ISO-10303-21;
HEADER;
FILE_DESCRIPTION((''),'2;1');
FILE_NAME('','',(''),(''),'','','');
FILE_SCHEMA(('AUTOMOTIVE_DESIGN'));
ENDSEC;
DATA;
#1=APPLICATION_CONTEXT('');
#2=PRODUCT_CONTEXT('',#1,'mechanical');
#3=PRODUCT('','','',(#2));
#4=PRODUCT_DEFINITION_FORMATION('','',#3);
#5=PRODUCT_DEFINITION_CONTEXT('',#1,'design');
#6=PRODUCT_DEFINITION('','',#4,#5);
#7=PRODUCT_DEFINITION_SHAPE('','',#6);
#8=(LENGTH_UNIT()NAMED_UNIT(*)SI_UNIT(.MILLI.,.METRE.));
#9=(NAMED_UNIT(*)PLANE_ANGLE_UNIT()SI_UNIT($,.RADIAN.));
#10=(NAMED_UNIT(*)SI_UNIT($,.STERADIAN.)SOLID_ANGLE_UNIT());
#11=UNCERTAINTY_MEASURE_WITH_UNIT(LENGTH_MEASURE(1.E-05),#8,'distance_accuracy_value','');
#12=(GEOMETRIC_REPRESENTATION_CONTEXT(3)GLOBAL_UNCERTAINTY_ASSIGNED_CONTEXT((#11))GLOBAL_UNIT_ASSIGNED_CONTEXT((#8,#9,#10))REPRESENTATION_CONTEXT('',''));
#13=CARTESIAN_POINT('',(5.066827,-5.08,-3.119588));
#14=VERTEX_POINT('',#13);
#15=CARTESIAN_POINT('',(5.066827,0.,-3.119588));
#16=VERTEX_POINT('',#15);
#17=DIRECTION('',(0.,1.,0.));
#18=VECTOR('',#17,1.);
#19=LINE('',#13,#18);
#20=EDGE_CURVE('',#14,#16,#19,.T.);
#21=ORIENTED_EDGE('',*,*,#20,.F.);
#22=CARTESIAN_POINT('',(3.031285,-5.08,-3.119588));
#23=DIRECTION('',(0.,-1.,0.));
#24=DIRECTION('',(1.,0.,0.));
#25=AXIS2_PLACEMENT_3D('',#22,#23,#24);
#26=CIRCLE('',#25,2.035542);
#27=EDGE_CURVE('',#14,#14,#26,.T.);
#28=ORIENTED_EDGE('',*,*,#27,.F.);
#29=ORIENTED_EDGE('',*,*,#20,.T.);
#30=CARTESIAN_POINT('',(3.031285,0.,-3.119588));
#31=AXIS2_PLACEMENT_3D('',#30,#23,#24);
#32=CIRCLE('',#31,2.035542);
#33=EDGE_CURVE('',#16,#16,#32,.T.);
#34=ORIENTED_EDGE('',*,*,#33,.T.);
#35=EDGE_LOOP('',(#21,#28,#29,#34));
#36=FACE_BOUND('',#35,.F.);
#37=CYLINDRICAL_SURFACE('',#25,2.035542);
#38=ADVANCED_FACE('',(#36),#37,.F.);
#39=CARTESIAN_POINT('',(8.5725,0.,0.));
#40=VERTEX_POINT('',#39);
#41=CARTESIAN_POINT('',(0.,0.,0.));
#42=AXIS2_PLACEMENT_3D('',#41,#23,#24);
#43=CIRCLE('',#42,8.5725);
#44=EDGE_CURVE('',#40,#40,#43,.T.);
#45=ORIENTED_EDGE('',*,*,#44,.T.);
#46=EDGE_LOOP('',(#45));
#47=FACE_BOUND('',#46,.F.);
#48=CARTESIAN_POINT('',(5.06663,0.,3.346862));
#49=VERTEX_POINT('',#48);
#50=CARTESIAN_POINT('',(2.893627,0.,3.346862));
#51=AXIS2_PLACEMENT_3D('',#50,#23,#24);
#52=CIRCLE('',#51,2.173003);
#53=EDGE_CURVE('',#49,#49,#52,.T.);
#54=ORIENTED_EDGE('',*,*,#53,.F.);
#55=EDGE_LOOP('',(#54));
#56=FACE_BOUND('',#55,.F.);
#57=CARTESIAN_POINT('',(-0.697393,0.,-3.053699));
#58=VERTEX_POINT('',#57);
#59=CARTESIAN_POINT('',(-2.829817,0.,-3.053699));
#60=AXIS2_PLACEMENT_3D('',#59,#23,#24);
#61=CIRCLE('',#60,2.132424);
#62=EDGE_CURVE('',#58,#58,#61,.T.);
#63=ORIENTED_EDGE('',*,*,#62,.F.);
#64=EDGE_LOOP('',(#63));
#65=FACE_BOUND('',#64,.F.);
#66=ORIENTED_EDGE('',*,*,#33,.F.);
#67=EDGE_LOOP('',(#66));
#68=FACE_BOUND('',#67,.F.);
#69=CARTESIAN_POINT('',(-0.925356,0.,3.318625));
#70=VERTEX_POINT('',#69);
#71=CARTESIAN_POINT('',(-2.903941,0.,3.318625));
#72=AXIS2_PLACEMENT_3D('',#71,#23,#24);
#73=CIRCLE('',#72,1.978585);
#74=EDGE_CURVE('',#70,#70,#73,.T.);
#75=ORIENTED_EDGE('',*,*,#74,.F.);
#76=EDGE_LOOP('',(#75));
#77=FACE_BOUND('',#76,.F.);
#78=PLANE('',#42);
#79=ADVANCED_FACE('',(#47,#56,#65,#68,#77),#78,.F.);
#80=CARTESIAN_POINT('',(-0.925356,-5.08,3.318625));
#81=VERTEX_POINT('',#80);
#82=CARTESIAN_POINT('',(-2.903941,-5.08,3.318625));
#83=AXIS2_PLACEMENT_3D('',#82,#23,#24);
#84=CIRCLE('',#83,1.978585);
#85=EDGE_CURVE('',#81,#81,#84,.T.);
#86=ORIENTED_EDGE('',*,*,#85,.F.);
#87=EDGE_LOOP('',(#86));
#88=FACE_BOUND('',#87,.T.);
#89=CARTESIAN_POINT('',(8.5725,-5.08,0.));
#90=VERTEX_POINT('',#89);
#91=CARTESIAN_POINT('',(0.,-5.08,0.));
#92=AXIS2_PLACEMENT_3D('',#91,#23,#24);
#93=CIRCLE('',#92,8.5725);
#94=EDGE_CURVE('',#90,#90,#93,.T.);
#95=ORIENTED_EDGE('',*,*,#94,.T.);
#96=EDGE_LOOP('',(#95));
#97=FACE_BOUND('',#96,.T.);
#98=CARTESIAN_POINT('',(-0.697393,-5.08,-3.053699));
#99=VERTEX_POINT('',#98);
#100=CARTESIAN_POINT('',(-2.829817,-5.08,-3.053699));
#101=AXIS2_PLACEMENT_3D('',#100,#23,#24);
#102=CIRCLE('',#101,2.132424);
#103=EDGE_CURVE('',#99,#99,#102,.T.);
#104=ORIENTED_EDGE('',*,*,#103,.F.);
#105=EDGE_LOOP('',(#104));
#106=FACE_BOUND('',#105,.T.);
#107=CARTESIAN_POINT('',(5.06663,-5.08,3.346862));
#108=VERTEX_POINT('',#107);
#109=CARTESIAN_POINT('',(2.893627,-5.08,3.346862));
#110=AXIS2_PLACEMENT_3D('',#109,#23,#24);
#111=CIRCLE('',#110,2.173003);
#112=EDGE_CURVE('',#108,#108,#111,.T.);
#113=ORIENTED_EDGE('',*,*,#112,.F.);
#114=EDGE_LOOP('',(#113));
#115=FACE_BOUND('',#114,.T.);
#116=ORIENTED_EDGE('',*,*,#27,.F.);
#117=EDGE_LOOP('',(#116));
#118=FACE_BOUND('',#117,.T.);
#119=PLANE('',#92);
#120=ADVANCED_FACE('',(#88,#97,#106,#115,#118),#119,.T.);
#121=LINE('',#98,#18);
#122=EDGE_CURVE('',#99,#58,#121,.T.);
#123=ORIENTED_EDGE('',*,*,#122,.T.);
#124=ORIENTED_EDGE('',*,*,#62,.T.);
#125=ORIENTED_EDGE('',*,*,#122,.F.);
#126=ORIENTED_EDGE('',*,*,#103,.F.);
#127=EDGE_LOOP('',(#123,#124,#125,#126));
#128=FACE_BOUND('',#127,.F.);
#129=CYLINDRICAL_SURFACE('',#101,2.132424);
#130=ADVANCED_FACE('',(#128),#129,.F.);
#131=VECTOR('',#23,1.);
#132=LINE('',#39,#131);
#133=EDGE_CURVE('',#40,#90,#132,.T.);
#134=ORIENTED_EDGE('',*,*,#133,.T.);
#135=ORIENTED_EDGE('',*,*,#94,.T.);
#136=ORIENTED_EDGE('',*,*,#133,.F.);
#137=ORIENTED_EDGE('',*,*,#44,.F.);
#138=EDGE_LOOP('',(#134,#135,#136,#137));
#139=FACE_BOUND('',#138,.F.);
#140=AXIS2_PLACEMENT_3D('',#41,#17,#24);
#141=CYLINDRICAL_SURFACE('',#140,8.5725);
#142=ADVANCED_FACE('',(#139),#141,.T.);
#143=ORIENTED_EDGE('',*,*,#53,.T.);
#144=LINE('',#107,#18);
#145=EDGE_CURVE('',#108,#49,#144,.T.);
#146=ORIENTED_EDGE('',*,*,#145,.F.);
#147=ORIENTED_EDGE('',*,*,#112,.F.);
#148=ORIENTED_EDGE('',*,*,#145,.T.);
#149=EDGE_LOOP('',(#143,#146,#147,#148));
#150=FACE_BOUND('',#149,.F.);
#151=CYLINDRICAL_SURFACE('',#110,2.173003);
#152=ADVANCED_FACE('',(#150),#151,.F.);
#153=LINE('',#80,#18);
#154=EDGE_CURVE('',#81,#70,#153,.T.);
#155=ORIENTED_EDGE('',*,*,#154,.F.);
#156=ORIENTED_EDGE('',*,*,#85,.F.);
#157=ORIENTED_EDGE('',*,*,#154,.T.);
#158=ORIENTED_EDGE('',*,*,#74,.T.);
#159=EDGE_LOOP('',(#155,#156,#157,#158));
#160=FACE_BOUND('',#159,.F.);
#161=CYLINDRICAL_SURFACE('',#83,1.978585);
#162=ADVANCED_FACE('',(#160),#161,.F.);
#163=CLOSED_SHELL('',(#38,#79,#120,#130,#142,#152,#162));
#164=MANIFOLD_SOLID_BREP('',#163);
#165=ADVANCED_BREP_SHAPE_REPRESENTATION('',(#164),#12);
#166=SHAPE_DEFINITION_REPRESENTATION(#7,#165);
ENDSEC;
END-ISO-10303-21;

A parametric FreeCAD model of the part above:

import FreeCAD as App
import Part
import Sketcher
from FreeCAD import Vector
Q = App.Units.Quantity

doc = App.newDocument("Part")
body = doc.addObject("PartDesign::Body", "Body")

# Sketch on XZ plane
sketch1 = doc.addObject("Sketcher::SketchObject", "Sketch")
body.addObject(sketch1)
sketch1.AttachmentSupport = (doc.XZ_Plane, [""])
sketch1.MapMode = "FlatFace"
sketch1.addGeometry(Part.Circle(Vector(0, 0, 0), Vector(0, 0, 1), 8.5725), False)
sketch1.addConstraint([
    Sketcher.Constraint("Coincident", 0, 3, -1, 1),
    Sketcher.Constraint("Diameter", 0, Q("0.675 in")),
])
pad1 = doc.addObject("PartDesign::Pad", "Pad")
body.addObject(pad1)
pad1.Profile = sketch1
pad1.Length = Q("0.2 in")

# Sketch on XZ plane
sketch2 = doc.addObject("Sketcher::SketchObject", "Sketch001")
body.addObject(sketch2)
sketch2.AttachmentSupport = (doc.XZ_Plane, [""])
sketch2.MapMode = "FlatFace"
sketch2.AttachmentOffset = App.Placement(Vector(0, 0, 0.2 * 25.4), App.Rotation())
sketch2.addGeometry([
    Part.Circle(Vector(-2.903941, 3.318625, 0), Vector(0, 0, 1), 1.978585),
    Part.Circle(Vector(2.893627, 3.346862, 0), Vector(0, 0, 1), 2.173003),
    Part.Circle(Vector(3.031285, -3.119588, 0), Vector(0, 0, 1), 2.035542),
    Part.Circle(Vector(-2.829817, -3.053699, 0), Vector(0, 0, 1), 2.132424),
], False)
sketch2.addConstraint([
    Sketcher.Constraint("Diameter", 0, 3.95717),
    Sketcher.Constraint("Diameter", 1, 4.346006),
    Sketcher.Constraint("Diameter", 2, 4.071084),
    Sketcher.Constraint("Diameter", 3, 4.264848),
    Sketcher.Constraint("DistanceY", 3, 3, -1, 1, 3.053699),
    Sketcher.Constraint("DistanceX", 3, 3, 2, 3, 5.861102),
    Sketcher.Constraint("DistanceX", 0, 3, -1, 1, 2.903941),
    Sketcher.Constraint("DistanceY", -1, 1, 1, 3, 3.346862),
    Sketcher.Constraint("DistanceX", 1, 3, 2, 3, 0.137658),
    Sketcher.Constraint("DistanceY", 2, 3, 1, 3, 6.46645),
    Sketcher.Constraint("DistanceY", -1, 1, 0, 3, 3.318625),
    Sketcher.Constraint("DistanceX", -1, 1, 1, 3, 2.893627),
])
pocket1 = doc.addObject("PartDesign::Pocket", "Pocket")
body.addObject(pocket1)
pocket1.Profile = sketch2
pocket1.Length = Q("1 in")

doc.recompute()
